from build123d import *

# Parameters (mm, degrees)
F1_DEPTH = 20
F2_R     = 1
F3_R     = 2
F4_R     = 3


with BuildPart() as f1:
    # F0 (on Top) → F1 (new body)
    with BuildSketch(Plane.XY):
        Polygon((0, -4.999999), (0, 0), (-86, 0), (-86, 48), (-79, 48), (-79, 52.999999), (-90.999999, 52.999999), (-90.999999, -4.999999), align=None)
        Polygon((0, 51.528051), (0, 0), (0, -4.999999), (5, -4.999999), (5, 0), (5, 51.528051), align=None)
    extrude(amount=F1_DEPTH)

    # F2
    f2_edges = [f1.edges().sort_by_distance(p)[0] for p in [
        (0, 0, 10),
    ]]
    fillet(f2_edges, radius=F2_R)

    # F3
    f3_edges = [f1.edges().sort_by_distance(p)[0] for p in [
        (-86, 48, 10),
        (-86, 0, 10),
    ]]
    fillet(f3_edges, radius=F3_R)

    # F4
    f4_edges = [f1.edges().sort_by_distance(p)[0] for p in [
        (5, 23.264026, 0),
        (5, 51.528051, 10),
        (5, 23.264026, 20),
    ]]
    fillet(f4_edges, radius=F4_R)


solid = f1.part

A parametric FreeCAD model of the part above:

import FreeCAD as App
import Part
import Sketcher

V = App.Vector


def edges_at(feature, points):
    """Names of the edges that pass closest to the given points."""
    edges = feature.Shape.Edges
    near = lambda p: min(range(len(edges)), key=lambda i: edges[i].distToShape(Part.Vertex(*p))[0])
    return sorted({f"Edge{near(p) + 1}" for p in points})


def add_polygon(sketch, points):
    """Adds a closed chain of lines whose ends are joined by coincident constraints."""
    first, n = sketch.GeometryCount, len(points)
    for a, b in zip(points, points[1:] + points[:1]):
        sketch.addGeometry(Part.LineSegment(App.Vector(*a, 0), App.Vector(*b, 0)), False)
    for i in range(n):
        sketch.addConstraint(Sketcher.Constraint("Coincident", first + i, 2, first + (i + 1) % n, 1))

doc = App.newDocument("Part")
params = doc.addObject("Spreadsheet::Sheet", "Params")
for row, (alias, value) in enumerate([
    ("sketch1_width", "86 mm"),
    ("sketch1_width2", "7 mm"),
    ("sketch1_width3", "11.999999 mm"),
    ("sketch1_width4", "95.999999 mm"),
    ("sketch1_height", "48 mm"),
    ("pad1_length", "20 mm"),
    ("fillet_radius", "1 mm"),
    ("fillet2_radius", "2 mm"),
    ("fillet3_radius", "3 mm"),
], start=1):
    params.set(f"A{row}", alias)
    params.set(f"B{row}", "=" + value)
    params.setAlias(f"B{row}", alias)

body = doc.addObject("PartDesign::Body", "Body")

# Sketch on XY plane
sketch1 = body.newObject("Sketcher::SketchObject", "Sketch")
sketch1.AttachmentSupport = (doc.getObject("XY_Plane"), [""])
sketch1.MapMode = "FlatFace"
add_polygon(sketch1, [(0, 0), (-86, 0), (-86, 48), (-79, 48), (-79, 52.999999), (-90.999999, 52.999999), (-90.999999, -4.999999), (5, -4.999999), (5, 51.528051), (0, 51.528051)])  # lines 0-9
sketch1.addConstraint(Sketcher.Constraint("Horizontal", 0))
sketch1.addConstraint(Sketcher.Constraint("Vertical", 1))
sketch1.addConstraint(Sketcher.Constraint("Horizontal", 2))
sketch1.addConstraint(Sketcher.Constraint("Vertical", 3))
sketch1.addConstraint(Sketcher.Constraint("Horizontal", 4))
sketch1.addConstraint(Sketcher.Constraint("Vertical", 5))
sketch1.addConstraint(Sketcher.Constraint("Horizontal", 6))
sketch1.addConstraint(Sketcher.Constraint("Vertical", 7))
sketch1.addConstraint(Sketcher.Constraint("Horizontal", 8))
sketch1.addConstraint(Sketcher.Constraint("Vertical", 9))
sketch1.addConstraint(Sketcher.Constraint("Coincident", 9, 2, -1, 1))
sketch1.addConstraint(Sketcher.Constraint("Equal", 8, 3))
sketch1.addConstraint(Sketcher.Constraint("DistanceX", 0, 2, 0, 1, 86.0))
sketch1.addConstraint(Sketcher.Constraint("DistanceX", 2, 1, 2, 2, 7.0))
sketch1.addConstraint(Sketcher.Constraint("DistanceX", 4, 2, 4, 1, 11.999999))
sketch1.addConstraint(Sketcher.Constraint("DistanceX", 6, 1, 6, 2, 95.999999))
sketch1.addConstraint(Sketcher.Constraint("DistanceY", 1, 1, 1, 2, 48.0))
sketch1.addConstraint(Sketcher.Constraint("DistanceY", 5, 2, 5, 1, 57.999998))
sketch1.addConstraint(Sketcher.Constraint("DistanceY", 7, 1, 7, 2, 56.52805))
sketch1.setExpression("Constraints[22]", "Params.sketch1_width")
sketch1.setExpression("Constraints[23]", "Params.sketch1_width2")
sketch1.setExpression("Constraints[24]", "Params.sketch1_width3")
sketch1.setExpression("Constraints[25]", "Params.sketch1_width4")
sketch1.setExpression("Constraints[26]", "Params.sketch1_height")
pad1 = body.newObject("PartDesign::Pad", "Pad")
pad1.Profile = sketch1
pad1.setExpression("Length", "Params.pad1_length")
doc.recompute()

fillet = body.newObject("PartDesign::Fillet", "Fillet")
fillet.Base = (pad1, edges_at(pad1, [(0, 0, 10)]))
fillet.setExpression("Radius", "Params.fillet_radius")
doc.recompute()

fillet2 = body.newObject("PartDesign::Fillet", "Fillet001")
fillet2.Base = (fillet, edges_at(fillet, [(-86, 48, 10), (-86, 0, 10)]))
fillet2.setExpression("Radius", "Params.fillet2_radius")
doc.recompute()

fillet3 = body.newObject("PartDesign::Fillet", "Fillet002")
fillet3.Base = (fillet2, edges_at(fillet2, [(5, 23.264, 0), (5, 51.528, 10), (5, 23.264, 20)]))
fillet3.setExpression("Radius", "Params.fillet3_radius")

doc.recompute()
